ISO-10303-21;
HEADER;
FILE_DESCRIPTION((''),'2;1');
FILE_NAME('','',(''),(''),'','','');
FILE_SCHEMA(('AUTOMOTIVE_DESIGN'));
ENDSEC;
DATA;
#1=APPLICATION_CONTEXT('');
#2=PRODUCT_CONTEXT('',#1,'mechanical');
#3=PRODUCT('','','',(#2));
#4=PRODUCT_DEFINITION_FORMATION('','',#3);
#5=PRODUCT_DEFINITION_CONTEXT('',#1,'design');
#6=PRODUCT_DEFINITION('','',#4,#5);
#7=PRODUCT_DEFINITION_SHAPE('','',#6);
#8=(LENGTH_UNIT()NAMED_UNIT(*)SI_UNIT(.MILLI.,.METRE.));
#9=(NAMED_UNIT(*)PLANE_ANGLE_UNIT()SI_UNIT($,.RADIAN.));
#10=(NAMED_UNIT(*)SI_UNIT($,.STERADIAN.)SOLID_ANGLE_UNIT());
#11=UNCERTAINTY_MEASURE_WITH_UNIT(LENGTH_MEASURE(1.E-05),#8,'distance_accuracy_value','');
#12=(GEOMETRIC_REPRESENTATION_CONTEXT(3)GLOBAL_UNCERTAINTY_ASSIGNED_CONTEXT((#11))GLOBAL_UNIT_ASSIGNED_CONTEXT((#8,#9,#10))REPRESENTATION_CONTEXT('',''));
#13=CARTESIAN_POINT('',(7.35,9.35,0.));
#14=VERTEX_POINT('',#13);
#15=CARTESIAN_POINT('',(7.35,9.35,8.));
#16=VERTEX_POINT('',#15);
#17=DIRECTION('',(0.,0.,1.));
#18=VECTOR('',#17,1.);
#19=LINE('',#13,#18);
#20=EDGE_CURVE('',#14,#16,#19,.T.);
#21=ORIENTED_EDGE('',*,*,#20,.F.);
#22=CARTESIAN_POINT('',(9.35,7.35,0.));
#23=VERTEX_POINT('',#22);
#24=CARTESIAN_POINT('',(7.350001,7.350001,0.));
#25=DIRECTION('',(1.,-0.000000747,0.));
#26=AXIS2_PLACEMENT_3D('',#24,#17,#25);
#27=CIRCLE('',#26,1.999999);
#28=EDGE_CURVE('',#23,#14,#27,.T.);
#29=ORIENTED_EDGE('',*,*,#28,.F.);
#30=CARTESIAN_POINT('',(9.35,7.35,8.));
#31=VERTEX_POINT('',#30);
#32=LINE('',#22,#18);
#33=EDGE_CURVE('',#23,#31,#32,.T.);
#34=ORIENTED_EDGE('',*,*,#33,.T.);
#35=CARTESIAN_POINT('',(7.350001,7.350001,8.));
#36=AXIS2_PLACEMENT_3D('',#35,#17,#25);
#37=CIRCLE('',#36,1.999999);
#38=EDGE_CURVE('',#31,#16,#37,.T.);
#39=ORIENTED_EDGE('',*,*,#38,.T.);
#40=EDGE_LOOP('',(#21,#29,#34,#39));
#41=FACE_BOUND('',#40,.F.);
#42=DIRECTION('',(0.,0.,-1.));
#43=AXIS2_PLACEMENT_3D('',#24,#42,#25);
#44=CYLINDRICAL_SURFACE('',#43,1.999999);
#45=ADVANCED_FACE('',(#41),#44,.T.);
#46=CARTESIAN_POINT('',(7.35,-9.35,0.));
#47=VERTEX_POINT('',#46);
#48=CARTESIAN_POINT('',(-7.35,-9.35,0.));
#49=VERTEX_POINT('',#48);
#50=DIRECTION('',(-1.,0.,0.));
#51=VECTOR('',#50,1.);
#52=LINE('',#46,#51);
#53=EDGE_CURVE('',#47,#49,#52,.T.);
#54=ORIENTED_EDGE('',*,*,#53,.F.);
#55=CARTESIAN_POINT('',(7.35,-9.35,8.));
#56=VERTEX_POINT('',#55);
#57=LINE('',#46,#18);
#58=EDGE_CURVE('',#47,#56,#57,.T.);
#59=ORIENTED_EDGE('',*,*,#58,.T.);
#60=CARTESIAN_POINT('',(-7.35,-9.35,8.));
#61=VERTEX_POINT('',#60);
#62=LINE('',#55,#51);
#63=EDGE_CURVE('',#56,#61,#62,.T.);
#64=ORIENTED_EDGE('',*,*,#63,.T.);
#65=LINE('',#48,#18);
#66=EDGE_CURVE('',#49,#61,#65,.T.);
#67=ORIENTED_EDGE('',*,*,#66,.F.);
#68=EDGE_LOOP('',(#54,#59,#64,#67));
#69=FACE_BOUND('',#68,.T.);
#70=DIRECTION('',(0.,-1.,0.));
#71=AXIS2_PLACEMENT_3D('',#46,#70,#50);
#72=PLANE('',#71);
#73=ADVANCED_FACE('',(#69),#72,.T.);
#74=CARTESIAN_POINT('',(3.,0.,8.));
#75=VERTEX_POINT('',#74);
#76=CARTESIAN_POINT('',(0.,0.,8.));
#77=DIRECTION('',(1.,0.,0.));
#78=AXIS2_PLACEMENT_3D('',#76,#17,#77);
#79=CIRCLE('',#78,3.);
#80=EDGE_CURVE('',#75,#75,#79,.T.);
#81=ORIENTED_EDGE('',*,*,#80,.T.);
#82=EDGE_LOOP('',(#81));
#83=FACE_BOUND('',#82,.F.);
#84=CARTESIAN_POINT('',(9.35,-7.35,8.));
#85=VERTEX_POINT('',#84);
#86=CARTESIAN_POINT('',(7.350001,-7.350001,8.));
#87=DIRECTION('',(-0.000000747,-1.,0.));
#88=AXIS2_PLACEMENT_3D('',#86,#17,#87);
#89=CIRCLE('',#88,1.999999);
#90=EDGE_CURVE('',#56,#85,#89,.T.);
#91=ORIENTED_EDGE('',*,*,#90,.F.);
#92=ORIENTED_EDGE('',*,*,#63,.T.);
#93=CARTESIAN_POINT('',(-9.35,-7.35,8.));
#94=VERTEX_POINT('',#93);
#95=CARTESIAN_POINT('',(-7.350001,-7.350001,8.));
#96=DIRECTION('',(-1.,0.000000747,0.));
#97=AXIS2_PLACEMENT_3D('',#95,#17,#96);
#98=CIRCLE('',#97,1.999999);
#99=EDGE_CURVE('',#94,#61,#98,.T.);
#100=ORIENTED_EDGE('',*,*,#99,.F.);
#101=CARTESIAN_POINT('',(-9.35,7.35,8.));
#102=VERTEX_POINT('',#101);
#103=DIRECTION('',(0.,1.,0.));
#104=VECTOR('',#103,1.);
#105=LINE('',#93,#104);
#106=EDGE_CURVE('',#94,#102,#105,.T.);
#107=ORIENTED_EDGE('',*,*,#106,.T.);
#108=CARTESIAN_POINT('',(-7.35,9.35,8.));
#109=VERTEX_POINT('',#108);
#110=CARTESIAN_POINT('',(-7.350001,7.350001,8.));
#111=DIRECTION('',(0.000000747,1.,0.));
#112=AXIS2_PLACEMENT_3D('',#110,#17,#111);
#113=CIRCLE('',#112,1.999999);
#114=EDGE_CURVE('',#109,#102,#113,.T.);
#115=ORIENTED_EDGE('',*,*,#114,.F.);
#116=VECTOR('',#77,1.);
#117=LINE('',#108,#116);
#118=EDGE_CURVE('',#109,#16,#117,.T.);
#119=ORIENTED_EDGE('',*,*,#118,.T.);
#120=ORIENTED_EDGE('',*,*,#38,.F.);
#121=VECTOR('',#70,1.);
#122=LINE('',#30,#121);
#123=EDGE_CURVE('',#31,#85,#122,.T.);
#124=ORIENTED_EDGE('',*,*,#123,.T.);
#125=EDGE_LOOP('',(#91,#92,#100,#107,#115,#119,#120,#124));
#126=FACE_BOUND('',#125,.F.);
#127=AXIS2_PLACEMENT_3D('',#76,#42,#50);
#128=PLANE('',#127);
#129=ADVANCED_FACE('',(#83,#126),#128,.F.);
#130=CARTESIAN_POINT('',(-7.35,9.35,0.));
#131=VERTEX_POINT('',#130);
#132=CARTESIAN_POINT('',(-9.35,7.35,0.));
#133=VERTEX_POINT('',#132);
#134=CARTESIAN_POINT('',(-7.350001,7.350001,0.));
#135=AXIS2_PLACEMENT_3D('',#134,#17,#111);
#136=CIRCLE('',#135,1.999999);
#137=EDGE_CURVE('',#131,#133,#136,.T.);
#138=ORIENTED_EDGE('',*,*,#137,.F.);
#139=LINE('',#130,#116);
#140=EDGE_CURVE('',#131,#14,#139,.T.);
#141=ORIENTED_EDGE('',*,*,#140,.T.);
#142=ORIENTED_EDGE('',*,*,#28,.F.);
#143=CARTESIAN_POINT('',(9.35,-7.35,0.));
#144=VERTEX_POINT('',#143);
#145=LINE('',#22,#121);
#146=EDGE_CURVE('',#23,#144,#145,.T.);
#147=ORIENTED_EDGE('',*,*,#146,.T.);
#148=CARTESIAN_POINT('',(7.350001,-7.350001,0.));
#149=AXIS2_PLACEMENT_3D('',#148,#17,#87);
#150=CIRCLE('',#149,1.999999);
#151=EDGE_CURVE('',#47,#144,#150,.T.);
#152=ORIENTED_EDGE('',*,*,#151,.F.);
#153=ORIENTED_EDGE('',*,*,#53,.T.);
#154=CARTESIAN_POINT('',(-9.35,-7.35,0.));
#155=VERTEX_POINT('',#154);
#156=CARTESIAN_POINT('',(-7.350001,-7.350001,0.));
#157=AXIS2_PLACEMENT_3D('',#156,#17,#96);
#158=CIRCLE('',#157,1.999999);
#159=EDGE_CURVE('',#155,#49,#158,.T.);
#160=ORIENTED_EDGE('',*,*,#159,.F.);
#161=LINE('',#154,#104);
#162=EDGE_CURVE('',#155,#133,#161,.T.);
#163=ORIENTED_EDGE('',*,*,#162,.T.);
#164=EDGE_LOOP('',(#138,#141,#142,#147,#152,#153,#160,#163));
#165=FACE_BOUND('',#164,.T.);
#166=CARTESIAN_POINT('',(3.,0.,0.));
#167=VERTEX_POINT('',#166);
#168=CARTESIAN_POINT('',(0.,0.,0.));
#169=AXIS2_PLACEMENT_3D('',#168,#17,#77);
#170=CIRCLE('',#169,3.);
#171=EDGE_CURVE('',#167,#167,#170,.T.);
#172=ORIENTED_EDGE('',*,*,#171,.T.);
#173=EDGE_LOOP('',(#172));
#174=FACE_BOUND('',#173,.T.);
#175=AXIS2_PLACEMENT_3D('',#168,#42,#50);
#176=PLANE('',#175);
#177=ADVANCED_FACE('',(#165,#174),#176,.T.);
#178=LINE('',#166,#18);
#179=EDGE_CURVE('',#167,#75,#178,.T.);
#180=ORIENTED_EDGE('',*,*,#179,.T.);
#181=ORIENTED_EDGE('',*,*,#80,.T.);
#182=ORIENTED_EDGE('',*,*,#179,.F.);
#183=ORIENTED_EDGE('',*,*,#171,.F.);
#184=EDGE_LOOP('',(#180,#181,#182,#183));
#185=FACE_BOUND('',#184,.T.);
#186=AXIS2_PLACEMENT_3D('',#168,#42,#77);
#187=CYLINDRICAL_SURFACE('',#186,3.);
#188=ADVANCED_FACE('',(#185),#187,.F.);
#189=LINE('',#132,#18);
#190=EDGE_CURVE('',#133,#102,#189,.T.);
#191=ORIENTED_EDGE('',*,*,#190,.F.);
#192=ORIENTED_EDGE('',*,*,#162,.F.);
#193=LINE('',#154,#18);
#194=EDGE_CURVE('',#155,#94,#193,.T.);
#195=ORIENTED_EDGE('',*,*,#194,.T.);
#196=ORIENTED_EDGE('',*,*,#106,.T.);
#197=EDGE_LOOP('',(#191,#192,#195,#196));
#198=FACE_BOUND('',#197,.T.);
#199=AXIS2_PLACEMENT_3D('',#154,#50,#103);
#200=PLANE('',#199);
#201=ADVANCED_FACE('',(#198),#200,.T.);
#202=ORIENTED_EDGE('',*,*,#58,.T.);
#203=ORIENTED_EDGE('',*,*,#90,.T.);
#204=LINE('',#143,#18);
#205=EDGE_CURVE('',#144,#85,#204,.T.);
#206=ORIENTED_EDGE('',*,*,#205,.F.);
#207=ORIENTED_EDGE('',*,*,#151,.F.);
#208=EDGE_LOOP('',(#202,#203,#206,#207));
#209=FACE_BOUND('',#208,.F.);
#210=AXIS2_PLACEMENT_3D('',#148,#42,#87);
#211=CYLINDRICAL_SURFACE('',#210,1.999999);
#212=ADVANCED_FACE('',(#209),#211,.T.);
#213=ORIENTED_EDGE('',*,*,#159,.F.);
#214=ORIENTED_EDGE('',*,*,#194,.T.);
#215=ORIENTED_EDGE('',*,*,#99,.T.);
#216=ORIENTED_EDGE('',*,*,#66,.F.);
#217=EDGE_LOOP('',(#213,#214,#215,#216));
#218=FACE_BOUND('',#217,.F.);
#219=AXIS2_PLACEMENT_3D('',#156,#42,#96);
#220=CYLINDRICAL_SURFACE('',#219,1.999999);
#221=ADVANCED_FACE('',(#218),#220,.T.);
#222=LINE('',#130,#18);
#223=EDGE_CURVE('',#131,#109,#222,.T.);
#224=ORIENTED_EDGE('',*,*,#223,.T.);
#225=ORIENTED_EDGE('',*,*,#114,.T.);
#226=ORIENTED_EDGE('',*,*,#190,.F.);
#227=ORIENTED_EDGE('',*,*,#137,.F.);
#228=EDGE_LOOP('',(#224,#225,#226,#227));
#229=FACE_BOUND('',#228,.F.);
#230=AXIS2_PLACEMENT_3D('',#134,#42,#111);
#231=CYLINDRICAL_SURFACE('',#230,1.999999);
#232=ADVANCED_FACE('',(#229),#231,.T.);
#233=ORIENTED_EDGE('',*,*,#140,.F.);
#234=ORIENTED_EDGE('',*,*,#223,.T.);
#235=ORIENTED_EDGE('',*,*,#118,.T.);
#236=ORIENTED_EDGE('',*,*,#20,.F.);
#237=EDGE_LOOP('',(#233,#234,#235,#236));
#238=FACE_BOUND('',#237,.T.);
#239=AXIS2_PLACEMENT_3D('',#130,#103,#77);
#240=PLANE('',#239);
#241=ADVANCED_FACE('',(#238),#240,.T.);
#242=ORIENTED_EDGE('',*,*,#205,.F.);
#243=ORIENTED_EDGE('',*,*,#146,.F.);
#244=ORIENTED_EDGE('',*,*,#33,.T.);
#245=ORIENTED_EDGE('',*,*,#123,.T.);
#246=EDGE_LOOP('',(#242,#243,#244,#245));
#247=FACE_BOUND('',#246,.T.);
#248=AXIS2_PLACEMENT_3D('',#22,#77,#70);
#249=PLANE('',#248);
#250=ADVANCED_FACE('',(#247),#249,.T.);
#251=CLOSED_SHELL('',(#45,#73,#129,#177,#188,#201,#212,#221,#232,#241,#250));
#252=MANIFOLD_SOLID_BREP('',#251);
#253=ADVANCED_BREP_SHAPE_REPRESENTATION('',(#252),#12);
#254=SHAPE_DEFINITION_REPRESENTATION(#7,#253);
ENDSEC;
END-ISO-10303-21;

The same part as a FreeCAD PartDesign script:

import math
import FreeCAD as App
import Part
import Sketcher
from FreeCAD import Vector

doc = App.newDocument("Part")
body = doc.addObject("PartDesign::Body", "Body")

sketch1 = body.newObject("Sketcher::SketchObject", "Sketch")
sketch1.AttachmentSupport = (doc.getObject("XY_Plane"), [""])
sketch1.MapMode = "FlatFace"
sketch1.addGeometry([
    Part.LineSegment(Vector(7.3, 9.3, 0), Vector(-7.3, 9.3, 0)),
    Part.ArcOfCircle(Part.Circle(Vector(-7.4, 7.4, 0), Vector(0, 0, 1), 2), math.radians(90), math.radians(180)),
    Part.LineSegment(Vector(-9.3, 7.3, 0), Vector(-9.3, -7.3, 0)),
    Part.ArcOfCircle(Part.Circle(Vector(-7.4, -7.4, 0), Vector(0, 0, 1), 2), math.radians(180), math.radians(270)),
    Part.LineSegment(Vector(-7.3, -9.3, 0), Vector(7.3, -9.3, 0)),
    Part.ArcOfCircle(Part.Circle(Vector(7.4, -7.4, 0), Vector(0, 0, 1), 2), math.radians(-90), math.radians(0)),
    Part.LineSegment(Vector(9.3, -7.3, 0), Vector(9.3, 7.3, 0)),
    Part.ArcOfCircle(Part.Circle(Vector(7.4, 7.4, 0), Vector(0, 0, 1), 2), math.radians(0), math.radians(90)),
    Part.Circle(Vector(0, 0, 0), Vector(0, 0, 1), 3),
], False)
sketch1.addConstraint([
    Sketcher.Constraint("Tangent", 0, 2, 1, 1),
    Sketcher.Constraint("Tangent", 1, 2, 2, 1),
    Sketcher.Constraint("Tangent", 2, 2, 3, 1),
    Sketcher.Constraint("Tangent", 3, 2, 4, 1),
    Sketcher.Constraint("Tangent", 4, 2, 5, 1),
    Sketcher.Constraint("Tangent", 5, 2, 6, 1),
    Sketcher.Constraint("Tangent", 6, 2, 7, 1),
    Sketcher.Constraint("Tangent", 7, 2, 0, 1),
    Sketcher.Constraint("Horizontal", 0),
    Sketcher.Constraint("Vertical", 2),
    Sketcher.Constraint("Horizontal", 4),
    Sketcher.Constraint("Vertical", 6),
    Sketcher.Constraint("Coincident", 8, 3, -1, 1),
    Sketcher.Constraint("Equal", 1, 3),
    Sketcher.Constraint("Equal", 3, 5),
    Sketcher.Constraint("Equal", 5, 7),
    Sketcher.Constraint("Symmetric", 1, 3, 5, 3, -1, 1),
    Sketcher.Constraint("Equal", 4, 2),
    Sketcher.Constraint("Diameter", 8, 6.0),
    Sketcher.Constraint("Radius", 1, 1.999999),
    Sketcher.Constraint("DistanceX", 0, 2, 0, 1, 14.7),
])
pad1 = body.newObject("PartDesign::Pad", "Pad")
pad1.Profile = sketch1
pad1.Length = 8

doc.recompute()
